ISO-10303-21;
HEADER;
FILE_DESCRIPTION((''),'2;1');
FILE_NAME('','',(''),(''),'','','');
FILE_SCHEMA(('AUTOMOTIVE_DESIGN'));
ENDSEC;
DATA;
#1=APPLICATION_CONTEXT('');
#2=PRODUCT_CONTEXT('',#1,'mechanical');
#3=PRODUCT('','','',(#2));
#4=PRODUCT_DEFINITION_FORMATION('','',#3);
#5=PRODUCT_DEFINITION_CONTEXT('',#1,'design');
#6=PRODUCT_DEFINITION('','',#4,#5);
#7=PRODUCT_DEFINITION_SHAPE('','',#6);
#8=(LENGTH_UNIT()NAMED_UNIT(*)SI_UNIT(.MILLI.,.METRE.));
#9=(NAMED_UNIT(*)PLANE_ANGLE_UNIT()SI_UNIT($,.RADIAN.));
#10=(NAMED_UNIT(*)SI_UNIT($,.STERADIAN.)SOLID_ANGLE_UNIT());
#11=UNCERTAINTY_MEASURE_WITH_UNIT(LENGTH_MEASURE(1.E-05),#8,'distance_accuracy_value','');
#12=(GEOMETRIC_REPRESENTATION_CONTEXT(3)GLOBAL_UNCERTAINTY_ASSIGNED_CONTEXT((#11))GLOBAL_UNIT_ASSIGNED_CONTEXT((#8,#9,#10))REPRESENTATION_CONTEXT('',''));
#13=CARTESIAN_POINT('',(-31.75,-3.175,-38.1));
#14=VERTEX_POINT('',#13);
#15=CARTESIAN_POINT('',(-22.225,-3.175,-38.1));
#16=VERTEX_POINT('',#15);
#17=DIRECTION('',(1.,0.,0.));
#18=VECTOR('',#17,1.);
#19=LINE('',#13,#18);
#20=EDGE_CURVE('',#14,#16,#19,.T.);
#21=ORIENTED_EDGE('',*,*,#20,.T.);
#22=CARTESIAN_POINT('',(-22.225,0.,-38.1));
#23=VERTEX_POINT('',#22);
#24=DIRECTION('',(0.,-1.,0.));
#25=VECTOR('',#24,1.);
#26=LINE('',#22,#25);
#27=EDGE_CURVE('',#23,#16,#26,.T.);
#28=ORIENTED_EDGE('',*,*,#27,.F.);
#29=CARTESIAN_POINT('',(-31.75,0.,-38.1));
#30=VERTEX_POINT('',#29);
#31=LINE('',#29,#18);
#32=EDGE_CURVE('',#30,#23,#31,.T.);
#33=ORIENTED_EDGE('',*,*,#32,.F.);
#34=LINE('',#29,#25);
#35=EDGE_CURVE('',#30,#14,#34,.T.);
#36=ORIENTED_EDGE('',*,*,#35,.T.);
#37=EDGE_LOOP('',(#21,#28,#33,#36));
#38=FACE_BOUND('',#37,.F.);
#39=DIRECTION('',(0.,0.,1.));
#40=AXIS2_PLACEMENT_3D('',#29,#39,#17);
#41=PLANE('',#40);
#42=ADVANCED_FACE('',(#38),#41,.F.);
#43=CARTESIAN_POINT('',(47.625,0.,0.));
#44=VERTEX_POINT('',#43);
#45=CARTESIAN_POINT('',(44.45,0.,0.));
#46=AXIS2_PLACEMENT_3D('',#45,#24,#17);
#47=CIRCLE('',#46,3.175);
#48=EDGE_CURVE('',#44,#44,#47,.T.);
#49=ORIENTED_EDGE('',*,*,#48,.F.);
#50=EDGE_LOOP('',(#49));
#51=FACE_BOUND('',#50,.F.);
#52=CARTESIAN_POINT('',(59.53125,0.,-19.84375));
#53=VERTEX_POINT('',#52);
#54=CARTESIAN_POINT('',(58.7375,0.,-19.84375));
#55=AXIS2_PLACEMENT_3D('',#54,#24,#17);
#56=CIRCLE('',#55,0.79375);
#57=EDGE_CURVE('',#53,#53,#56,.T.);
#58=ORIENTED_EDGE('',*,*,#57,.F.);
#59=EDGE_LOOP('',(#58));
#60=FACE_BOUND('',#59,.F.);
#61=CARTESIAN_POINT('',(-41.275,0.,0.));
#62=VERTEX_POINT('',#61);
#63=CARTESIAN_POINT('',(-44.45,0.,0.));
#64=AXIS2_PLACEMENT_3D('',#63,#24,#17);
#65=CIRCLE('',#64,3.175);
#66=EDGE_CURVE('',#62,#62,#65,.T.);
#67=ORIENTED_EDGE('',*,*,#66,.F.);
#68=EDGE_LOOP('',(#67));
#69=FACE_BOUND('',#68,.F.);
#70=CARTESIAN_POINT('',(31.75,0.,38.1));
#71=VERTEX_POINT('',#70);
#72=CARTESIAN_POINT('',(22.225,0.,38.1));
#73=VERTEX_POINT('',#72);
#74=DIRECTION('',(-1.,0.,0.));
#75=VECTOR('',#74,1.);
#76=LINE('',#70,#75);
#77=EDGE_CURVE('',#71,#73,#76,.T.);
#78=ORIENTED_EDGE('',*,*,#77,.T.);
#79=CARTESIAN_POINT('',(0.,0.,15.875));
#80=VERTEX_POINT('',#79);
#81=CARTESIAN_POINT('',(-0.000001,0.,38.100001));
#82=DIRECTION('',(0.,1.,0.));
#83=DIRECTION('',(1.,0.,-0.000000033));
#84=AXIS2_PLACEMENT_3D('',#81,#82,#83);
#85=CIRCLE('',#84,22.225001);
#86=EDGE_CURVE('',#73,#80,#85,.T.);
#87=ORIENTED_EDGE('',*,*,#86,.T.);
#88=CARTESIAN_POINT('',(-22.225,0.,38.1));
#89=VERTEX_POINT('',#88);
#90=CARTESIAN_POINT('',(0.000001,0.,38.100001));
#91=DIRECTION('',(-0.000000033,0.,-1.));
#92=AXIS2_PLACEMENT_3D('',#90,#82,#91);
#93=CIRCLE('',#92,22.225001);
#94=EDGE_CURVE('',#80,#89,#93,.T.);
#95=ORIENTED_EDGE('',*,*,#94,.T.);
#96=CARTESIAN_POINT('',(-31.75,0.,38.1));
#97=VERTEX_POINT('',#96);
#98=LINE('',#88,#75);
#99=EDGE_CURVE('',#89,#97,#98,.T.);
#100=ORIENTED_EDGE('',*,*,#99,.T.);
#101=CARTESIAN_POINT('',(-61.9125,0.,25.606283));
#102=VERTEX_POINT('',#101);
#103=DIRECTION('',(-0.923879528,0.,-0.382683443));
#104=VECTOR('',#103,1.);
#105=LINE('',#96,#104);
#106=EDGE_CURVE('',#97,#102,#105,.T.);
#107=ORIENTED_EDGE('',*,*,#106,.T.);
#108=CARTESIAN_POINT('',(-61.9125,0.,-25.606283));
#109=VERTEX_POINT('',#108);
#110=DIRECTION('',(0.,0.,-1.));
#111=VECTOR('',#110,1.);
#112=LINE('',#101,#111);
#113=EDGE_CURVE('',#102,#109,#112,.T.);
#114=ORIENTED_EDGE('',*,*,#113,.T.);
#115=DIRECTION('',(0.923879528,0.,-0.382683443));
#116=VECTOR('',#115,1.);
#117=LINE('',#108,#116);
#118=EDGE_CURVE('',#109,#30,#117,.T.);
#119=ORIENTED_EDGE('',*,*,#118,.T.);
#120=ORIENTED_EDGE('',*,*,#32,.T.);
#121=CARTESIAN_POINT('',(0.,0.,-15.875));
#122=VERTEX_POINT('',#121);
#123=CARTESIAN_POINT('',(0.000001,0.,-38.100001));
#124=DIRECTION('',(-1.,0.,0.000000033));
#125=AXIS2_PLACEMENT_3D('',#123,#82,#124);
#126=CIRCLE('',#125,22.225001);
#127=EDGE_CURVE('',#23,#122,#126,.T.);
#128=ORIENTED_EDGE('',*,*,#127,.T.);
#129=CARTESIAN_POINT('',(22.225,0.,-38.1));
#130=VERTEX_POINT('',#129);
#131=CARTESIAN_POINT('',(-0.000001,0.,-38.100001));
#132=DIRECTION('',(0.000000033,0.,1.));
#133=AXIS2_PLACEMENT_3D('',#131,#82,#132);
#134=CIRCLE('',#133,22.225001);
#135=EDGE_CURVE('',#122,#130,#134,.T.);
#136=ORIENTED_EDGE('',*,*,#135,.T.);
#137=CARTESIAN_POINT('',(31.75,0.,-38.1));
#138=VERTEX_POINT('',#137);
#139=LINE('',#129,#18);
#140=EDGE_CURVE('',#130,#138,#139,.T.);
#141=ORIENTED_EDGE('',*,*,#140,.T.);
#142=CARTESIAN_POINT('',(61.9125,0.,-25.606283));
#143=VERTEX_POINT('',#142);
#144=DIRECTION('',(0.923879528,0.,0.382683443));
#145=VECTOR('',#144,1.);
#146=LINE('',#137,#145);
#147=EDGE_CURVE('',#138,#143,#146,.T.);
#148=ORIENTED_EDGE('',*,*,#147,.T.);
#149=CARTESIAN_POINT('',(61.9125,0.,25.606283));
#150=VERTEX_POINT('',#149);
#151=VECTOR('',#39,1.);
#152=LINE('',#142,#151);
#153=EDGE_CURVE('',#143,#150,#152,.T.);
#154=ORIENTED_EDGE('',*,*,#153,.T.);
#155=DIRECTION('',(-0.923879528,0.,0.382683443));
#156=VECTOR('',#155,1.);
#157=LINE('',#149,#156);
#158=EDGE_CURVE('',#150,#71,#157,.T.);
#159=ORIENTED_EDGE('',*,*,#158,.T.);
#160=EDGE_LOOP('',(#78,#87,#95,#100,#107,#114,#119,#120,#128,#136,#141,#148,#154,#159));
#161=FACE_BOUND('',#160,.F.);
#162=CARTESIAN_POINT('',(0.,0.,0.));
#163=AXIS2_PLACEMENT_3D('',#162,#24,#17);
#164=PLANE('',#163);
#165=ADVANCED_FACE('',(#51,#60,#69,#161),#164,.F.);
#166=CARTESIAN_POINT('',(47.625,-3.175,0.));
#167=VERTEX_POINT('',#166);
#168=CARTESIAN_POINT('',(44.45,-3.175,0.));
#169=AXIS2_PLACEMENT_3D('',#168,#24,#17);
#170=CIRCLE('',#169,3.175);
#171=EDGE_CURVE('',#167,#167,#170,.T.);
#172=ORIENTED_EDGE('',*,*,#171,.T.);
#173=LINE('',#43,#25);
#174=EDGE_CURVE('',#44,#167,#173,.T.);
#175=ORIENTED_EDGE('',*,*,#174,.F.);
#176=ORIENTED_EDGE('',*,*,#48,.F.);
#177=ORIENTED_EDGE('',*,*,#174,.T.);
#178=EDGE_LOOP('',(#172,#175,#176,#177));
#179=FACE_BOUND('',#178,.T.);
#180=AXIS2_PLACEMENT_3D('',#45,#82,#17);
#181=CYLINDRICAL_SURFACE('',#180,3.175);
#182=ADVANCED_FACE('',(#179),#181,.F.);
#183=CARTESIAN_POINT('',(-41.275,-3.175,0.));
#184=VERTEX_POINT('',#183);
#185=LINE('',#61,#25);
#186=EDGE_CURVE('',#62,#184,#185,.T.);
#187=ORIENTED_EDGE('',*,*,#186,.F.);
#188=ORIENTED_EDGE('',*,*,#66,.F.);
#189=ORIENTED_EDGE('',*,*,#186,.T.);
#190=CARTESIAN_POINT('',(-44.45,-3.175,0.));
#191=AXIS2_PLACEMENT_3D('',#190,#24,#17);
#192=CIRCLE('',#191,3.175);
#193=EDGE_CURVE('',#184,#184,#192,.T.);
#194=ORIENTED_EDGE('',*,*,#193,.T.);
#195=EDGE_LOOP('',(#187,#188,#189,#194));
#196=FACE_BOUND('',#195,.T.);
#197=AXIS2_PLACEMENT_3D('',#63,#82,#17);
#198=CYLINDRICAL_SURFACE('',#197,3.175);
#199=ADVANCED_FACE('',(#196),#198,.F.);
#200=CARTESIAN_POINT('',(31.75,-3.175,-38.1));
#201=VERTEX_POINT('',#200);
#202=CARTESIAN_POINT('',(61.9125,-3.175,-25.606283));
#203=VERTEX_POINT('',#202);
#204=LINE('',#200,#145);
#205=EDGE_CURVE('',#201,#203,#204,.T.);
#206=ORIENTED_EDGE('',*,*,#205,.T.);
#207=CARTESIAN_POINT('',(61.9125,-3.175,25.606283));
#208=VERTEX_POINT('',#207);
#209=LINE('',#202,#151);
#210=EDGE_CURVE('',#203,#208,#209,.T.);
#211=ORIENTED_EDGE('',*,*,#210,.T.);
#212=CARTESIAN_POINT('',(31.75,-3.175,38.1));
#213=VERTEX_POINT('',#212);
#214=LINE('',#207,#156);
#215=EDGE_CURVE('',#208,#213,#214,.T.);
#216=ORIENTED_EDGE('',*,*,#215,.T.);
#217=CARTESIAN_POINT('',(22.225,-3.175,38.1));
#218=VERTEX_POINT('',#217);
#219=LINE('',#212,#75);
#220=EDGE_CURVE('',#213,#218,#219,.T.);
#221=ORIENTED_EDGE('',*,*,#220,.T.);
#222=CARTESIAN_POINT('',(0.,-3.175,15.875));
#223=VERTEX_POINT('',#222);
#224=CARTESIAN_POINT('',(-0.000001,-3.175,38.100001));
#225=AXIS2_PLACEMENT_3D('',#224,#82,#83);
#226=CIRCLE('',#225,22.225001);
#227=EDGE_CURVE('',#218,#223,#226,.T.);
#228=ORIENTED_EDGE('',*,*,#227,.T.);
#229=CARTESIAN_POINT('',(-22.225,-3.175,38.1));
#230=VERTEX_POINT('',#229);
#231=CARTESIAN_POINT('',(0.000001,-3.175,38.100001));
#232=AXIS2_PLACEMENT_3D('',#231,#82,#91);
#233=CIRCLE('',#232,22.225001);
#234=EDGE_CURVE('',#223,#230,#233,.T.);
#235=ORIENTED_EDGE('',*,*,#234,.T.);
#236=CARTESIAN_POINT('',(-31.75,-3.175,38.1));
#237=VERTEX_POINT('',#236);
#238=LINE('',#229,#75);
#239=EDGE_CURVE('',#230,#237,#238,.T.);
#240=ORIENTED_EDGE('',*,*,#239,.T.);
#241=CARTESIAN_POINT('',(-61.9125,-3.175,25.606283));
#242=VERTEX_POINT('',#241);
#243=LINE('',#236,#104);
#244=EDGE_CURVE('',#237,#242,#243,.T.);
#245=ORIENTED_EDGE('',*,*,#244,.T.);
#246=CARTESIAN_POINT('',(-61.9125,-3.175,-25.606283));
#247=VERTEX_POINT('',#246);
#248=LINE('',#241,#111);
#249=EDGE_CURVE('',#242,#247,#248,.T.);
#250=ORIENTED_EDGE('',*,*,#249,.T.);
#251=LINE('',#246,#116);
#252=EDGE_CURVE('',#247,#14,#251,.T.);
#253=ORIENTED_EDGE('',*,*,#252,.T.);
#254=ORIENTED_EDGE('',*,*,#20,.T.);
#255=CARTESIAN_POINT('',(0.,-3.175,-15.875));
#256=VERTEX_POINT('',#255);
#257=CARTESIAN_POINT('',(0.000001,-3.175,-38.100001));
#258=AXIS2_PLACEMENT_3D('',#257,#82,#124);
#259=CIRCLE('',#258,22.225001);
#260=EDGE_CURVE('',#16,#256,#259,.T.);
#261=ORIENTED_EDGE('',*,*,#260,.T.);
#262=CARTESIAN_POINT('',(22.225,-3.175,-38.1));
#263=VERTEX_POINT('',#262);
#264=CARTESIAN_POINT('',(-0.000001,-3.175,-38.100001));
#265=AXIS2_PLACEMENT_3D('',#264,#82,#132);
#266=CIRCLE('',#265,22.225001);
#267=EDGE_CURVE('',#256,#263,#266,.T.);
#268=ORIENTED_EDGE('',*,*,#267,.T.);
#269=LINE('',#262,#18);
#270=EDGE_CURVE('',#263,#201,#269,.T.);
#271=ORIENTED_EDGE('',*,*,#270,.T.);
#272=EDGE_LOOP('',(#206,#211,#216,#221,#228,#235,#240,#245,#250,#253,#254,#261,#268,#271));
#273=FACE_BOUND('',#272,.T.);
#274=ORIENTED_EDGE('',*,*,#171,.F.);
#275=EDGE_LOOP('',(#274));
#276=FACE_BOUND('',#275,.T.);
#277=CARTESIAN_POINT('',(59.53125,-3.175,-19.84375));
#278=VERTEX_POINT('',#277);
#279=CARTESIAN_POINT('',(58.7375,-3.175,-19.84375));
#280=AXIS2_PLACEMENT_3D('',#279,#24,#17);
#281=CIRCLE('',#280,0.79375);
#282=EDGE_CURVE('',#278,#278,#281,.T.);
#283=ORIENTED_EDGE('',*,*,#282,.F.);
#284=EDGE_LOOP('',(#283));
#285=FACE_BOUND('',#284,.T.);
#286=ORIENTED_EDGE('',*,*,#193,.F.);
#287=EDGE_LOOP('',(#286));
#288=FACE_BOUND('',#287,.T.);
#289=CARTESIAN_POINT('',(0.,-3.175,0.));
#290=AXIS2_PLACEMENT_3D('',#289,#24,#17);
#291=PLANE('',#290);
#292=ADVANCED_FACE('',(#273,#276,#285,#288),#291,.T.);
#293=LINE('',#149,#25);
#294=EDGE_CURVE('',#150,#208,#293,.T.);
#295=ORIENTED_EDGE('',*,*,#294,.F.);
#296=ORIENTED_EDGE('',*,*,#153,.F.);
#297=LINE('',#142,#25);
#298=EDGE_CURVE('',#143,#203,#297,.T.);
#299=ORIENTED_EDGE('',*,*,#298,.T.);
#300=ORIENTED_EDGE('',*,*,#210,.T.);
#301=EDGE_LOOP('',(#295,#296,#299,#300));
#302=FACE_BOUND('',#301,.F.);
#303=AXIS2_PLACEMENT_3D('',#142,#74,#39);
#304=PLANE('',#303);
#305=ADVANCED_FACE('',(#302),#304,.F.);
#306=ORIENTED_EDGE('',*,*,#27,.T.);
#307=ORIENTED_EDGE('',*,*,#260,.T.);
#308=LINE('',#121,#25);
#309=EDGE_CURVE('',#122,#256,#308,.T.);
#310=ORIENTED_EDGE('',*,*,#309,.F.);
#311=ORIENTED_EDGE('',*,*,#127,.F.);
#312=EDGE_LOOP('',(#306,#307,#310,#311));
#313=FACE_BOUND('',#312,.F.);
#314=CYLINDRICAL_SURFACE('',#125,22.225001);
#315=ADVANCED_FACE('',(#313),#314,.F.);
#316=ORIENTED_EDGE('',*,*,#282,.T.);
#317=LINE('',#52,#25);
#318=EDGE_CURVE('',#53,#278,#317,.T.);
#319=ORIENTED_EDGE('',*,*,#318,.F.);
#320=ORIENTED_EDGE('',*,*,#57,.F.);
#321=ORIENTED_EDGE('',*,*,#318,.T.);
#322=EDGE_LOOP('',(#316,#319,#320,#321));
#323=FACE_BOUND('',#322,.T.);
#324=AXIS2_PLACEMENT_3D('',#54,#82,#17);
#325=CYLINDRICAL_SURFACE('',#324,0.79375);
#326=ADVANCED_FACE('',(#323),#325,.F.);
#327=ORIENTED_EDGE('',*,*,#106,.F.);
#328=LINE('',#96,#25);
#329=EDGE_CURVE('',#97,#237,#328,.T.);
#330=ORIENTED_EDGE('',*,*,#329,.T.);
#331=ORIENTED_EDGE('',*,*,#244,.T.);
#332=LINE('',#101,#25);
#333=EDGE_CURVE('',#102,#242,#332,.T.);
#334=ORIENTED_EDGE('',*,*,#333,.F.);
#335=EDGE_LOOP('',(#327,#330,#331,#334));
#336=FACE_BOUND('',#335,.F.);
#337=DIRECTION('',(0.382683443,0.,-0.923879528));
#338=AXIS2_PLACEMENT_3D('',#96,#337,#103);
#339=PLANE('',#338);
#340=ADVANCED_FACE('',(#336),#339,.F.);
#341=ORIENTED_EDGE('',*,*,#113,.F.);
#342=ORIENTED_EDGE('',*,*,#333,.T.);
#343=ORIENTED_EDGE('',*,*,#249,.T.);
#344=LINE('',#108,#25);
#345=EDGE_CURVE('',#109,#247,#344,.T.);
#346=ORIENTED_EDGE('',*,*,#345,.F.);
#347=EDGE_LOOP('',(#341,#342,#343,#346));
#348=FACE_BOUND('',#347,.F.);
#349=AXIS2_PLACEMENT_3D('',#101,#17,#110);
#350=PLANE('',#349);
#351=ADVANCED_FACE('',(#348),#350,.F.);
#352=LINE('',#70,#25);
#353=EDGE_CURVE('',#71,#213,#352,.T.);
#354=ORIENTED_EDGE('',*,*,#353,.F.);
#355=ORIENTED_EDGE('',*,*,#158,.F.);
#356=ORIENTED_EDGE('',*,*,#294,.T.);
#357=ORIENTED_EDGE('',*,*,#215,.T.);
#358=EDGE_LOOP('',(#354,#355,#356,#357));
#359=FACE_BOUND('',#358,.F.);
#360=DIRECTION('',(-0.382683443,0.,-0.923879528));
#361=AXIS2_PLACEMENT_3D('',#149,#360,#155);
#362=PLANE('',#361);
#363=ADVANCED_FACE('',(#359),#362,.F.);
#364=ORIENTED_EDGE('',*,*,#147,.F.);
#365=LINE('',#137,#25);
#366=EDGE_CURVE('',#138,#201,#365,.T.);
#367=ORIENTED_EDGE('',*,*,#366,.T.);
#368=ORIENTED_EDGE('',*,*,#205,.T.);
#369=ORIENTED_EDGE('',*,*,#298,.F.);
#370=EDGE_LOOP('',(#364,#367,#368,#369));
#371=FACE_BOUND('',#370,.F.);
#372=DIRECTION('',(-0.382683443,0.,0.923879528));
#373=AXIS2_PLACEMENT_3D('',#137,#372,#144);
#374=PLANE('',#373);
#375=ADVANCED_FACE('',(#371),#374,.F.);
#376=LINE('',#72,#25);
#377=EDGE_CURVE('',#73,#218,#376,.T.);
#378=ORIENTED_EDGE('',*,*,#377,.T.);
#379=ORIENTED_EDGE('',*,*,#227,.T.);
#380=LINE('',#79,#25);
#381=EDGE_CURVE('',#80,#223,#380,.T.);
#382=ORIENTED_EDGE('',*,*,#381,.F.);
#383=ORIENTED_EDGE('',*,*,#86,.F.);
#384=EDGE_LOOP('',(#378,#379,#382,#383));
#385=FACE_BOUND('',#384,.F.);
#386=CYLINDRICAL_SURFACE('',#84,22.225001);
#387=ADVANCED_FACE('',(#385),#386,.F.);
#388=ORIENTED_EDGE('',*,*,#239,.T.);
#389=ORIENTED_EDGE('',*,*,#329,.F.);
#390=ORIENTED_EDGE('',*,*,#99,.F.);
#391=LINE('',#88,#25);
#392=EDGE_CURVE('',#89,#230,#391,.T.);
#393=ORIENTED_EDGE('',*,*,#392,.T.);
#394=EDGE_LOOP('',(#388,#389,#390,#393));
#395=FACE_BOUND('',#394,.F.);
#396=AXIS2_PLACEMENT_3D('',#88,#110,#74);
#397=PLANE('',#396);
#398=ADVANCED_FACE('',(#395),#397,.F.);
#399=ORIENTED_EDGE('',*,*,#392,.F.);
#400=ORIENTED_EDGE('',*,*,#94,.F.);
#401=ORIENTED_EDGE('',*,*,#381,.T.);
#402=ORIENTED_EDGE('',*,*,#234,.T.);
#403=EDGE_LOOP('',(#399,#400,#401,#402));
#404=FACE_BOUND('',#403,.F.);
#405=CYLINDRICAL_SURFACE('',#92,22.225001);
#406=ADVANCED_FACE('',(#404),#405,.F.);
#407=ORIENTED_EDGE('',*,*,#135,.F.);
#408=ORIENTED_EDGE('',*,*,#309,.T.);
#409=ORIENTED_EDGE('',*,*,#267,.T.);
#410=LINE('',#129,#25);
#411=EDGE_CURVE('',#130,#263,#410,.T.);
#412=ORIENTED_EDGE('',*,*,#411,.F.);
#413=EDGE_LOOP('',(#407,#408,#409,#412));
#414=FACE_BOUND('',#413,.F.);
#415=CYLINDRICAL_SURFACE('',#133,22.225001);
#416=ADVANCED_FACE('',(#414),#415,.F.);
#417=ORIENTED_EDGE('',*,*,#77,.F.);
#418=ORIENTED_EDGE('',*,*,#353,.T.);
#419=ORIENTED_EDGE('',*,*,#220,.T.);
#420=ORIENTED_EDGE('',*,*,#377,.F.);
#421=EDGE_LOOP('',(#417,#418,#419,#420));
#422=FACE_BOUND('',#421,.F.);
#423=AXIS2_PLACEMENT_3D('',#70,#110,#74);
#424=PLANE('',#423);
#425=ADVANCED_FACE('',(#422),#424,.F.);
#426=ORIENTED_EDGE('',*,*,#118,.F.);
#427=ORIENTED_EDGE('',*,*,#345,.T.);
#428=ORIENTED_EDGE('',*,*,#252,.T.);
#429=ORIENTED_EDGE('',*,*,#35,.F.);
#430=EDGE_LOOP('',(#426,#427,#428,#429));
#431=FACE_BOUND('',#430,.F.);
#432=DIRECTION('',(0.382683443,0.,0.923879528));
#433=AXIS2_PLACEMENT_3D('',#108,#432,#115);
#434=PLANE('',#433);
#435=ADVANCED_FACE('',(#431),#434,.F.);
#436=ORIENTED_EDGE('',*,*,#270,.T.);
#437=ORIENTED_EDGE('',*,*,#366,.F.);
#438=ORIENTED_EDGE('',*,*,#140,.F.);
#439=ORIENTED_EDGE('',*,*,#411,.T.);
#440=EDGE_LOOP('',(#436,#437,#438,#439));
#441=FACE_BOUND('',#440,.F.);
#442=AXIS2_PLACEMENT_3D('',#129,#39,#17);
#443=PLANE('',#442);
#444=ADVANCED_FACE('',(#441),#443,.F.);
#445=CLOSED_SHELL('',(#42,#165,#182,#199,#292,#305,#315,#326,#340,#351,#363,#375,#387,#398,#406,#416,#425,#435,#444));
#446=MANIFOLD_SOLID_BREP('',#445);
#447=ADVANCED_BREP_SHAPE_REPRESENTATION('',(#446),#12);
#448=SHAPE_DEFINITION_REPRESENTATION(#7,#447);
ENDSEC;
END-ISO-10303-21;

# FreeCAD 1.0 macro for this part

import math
import FreeCAD as App
import Part
import Sketcher
from FreeCAD import Vector
Q = App.Units.Quantity

doc = App.newDocument("Part")
body = doc.addObject("PartDesign::Body", "Body")

# Sketch on XZ plane
sketch1 = body.newObject("Sketcher::SketchObject", "Sketch")
sketch1.AttachmentSupport = (doc.getObject("XZ_Plane"), [""])
sketch1.MapMode = "FlatFace"
sketch1.addGeometry([
    Part.LineSegment(Vector(-22.225, 38.1, 0), Vector(-31.75, 38.1, 0)),  # 0
    Part.LineSegment(Vector(-31.75, 38.1, 0), Vector(-61.9125, 25.606283, 0)),  # 1
    Part.LineSegment(Vector(-61.9125, 25.606283, 0), Vector(-61.9125, -25.606283, 0)),  # 2
    Part.LineSegment(Vector(-61.9125, -25.606283, 0), Vector(-31.75, -38.1, 0)),  # 3
    Part.LineSegment(Vector(-31.75, -38.1, 0), Vector(-22.225, -38.1, 0)),  # 4
    Part.ArcOfCircle(Part.Circle(Vector(0.000001, -38.100001, 0), Vector(0, 0, 1), 22.225001), math.radians(90.000002), math.radians(179.999998)),  # 5
    Part.ArcOfCircle(Part.Circle(Vector(-0.000001, -38.100001, 0), Vector(0, 0, 1), 22.225001), math.radians(0.000002), math.radians(89.999998)),  # 6
    Part.LineSegment(Vector(22.225, -38.1, 0), Vector(31.75, -38.1, 0)),  # 7
    Part.LineSegment(Vector(31.75, -38.1, 0), Vector(61.9125, -25.606283, 0)),  # 8
    Part.LineSegment(Vector(61.9125, -25.606283, 0), Vector(61.9125, 25.606283, 0)),  # 9
    Part.LineSegment(Vector(61.9125, 25.606283, 0), Vector(31.75, 38.1, 0)),  # 10
    Part.LineSegment(Vector(31.75, 38.1, 0), Vector(22.225, 38.1, 0)),  # 11
    Part.ArcOfCircle(Part.Circle(Vector(-0.000001, 38.100001, 0), Vector(0, 0, 1), 22.225001), math.radians(-89.999998), math.radians(-0.000002)),  # 12
    Part.ArcOfCircle(Part.Circle(Vector(0.000001, 38.100001, 0), Vector(0, 0, 1), 22.225001), math.radians(-179.999998), math.radians(-90.000002)),  # 13
    Part.Circle(Vector(58.7375, -19.84375, 0), Vector(0, 0, 1), 0.79375),  # 14
    Part.Circle(Vector(-44.45, 0, 0), Vector(0, 0, 1), 3.175),  # 15
    Part.Circle(Vector(44.45, 0, 0), Vector(0, 0, 1), 3.175),  # 16
], False)
sketch1.addConstraint([
    Sketcher.Constraint("Coincident", 0, 2, 1, 1),
    Sketcher.Constraint("Coincident", 1, 2, 2, 1),
    Sketcher.Constraint("Coincident", 2, 2, 3, 1),
    Sketcher.Constraint("Coincident", 3, 2, 4, 1),
    Sketcher.Constraint("Coincident", 4, 2, 5, 2),
    Sketcher.Constraint("Tangent", 5, 1, 6, 2),
    Sketcher.Constraint("Coincident", 6, 1, 7, 1),
    Sketcher.Constraint("Coincident", 7, 2, 8, 1),
    Sketcher.Constraint("Coincident", 8, 2, 9, 1),
    Sketcher.Constraint("Coincident", 9, 2, 10, 1),
    Sketcher.Constraint("Coincident", 10, 2, 11, 1),
    Sketcher.Constraint("Coincident", 11, 2, 12, 2),
    Sketcher.Constraint("Tangent", 12, 1, 13, 2),
    Sketcher.Constraint("Coincident", 13, 1, 0, 1),
    Sketcher.Constraint("Horizontal", 0),
    Sketcher.Constraint("Vertical", 2),
    Sketcher.Constraint("Horizontal", 4),
    Sketcher.Constraint("Horizontal", 7),
    Sketcher.Constraint("Vertical", 9),
    Sketcher.Constraint("Horizontal", 11),
    Sketcher.Constraint("Equal", 5, 6),
    Sketcher.Constraint("Equal", 6, 12),
    Sketcher.Constraint("Equal", 12, 13),
    Sketcher.Constraint("Equal", 15, 16),
    Sketcher.Constraint("Symmetric", 5, 3, 12, 3, -1, 1),
    Sketcher.Constraint("Symmetric", 15, 3, 16, 3, -1, 1),
    Sketcher.Constraint("Symmetric", 0, 2, 7, 2, -1, 1),
    Sketcher.Constraint("Symmetric", 1, 2, 8, 2, -1, 1),
    Sketcher.Constraint("Symmetric", 3, 2, 10, 2, -1, 1),
    Sketcher.Constraint("Symmetric", 4, 2, 6, 1, -2),
    Sketcher.Constraint("PointOnObject", 15, 3, -1),
    Sketcher.Constraint("PointOnObject", 5, 1, -2),
    Sketcher.Constraint("PointOnObject", 12, 1, -2),
    Sketcher.Constraint("Parallel", 3, 10),
    Sketcher.Constraint("Horizontal", 13, 3, 0, 2),
    Sketcher.Constraint("Horizontal", 2, 2, 8, 2),
    Sketcher.Constraint("Vertical", 0, 2, 3, 2),
    Sketcher.Constraint("Diameter", 15, Q("0.25 in")),
    Sketcher.Constraint("Diameter", 14, Q("0.0625 in")),
    Sketcher.Constraint("Radius", 5, Q("0.875 in")),
    Sketcher.Constraint("DistanceY", 6, 3, 12, 3, Q("3.0000001 in")),
    Sketcher.Constraint("Angle", 1, Q("-157.499999 deg")),
    Sketcher.Constraint("DistanceX", 15, 3, 0, 2, Q("0.5 in")),
    Sketcher.Constraint("DistanceX", 0, 2, 0, 1, Q("0.375 in")),
    Sketcher.Constraint("DistanceX", -1, 1, 14, 3, Q("2.3125 in")),
    Sketcher.Constraint("DistanceY", 14, 3, -1, 1, Q("0.78125 in")),
    Sketcher.Constraint("DistanceX", 1, 2, -1, 1, Q("2.4375 in")),
])
pad1 = body.newObject("PartDesign::Pad", "Pad")
pad1.Profile = sketch1
pad1.Length = Q("0.125 in")

doc.recompute()
